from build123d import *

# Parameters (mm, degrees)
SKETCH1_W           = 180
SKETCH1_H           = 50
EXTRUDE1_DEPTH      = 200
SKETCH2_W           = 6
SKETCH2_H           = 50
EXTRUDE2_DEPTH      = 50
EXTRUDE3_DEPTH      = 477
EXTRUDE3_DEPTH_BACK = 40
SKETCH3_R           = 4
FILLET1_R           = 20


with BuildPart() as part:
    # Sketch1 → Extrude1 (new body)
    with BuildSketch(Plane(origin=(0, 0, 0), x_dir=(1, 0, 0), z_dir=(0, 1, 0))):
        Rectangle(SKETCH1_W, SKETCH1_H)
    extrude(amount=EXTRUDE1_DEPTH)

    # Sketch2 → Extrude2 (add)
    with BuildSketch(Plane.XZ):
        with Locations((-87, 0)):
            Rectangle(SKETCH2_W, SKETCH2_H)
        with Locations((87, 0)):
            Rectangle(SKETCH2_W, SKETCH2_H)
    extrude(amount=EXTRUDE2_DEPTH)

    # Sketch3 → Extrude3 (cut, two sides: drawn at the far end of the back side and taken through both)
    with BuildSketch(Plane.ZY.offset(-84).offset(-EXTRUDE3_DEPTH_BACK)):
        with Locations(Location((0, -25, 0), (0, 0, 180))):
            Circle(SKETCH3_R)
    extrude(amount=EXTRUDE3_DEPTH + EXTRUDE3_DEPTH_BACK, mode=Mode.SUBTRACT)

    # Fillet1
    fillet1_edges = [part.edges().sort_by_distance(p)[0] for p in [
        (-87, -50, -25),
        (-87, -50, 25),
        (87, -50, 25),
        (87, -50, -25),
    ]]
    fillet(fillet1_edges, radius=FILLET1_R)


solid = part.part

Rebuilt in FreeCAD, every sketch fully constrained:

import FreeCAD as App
import Part
import Sketcher


def edges_at(feature, points):
    """Names of the edges that pass closest to the given points."""
    edges = feature.Shape.Edges
    near = lambda p: min(range(len(edges)), key=lambda i: edges[i].distToShape(Part.Vertex(*p))[0])
    return sorted({f"Edge{near(p) + 1}" for p in points})

doc = App.newDocument("Part")
body = doc.addObject("PartDesign::Body", "Body")

sketch1 = body.newObject("Sketcher::SketchObject", "Sketch")
sketch1.AttachmentSupport = (doc.getObject("XZ_Plane"), [""])
sketch1.MapMode = "FlatFace"
sketch1.addGeometry([
    Part.LineSegment(App.Vector(-90, -25, 0), App.Vector(-90, 25, 0)),
    Part.LineSegment(App.Vector(-90, 25, 0), App.Vector(90, 25, 0)),
    Part.LineSegment(App.Vector(90, 25, 0), App.Vector(90, -25, 0)),
    Part.LineSegment(App.Vector(90, -25, 0), App.Vector(-90, -25, 0)),
], False)
sketch1.addConstraint([
    Sketcher.Constraint("Coincident", 0, 2, 1, 1),
    Sketcher.Constraint("Coincident", 1, 2, 2, 1),
    Sketcher.Constraint("Coincident", 2, 2, 3, 1),
    Sketcher.Constraint("Coincident", 3, 2, 0, 1),
    Sketcher.Constraint("Vertical", 0),
    Sketcher.Constraint("Horizontal", 1),
    Sketcher.Constraint("Vertical", 2),
    Sketcher.Constraint("Horizontal", 3),
    Sketcher.Constraint("Symmetric", 0, 2, 2, 2, -1, 1),
    Sketcher.Constraint("DistanceX", 1, 1, 1, 2, 180.0),
    Sketcher.Constraint("DistanceY", 0, 1, 0, 2, 50.0),
])
pad1 = body.newObject("PartDesign::Pad", "Pad")
pad1.Profile = sketch1
pad1.Length = 200
pad1.Reversed = True

sketch2 = body.newObject("Sketcher::SketchObject", "Sketch001")
sketch2.AttachmentSupport = (doc.getObject("XZ_Plane"), [""])
sketch2.MapMode = "FlatFace"
sketch2.addGeometry([
    Part.LineSegment(App.Vector(-90, 25, 0), App.Vector(-90, -25, 0)),
    Part.LineSegment(App.Vector(-90, -25, 0), App.Vector(-84, -25, 0)),
    Part.LineSegment(App.Vector(-84, -25, 0), App.Vector(-84, 25, 0)),
    Part.LineSegment(App.Vector(-84, 25, 0), App.Vector(-90, 25, 0)),
    Part.LineSegment(App.Vector(84, 25, 0), App.Vector(84, -25, 0)),
    Part.LineSegment(App.Vector(84, -25, 0), App.Vector(90, -25, 0)),
    Part.LineSegment(App.Vector(90, -25, 0), App.Vector(90, 25, 0)),
    Part.LineSegment(App.Vector(90, 25, 0), App.Vector(84, 25, 0)),
], False)
sketch2.addConstraint([
    Sketcher.Constraint("Coincident", 0, 2, 1, 1),
    Sketcher.Constraint("Coincident", 1, 2, 2, 1),
    Sketcher.Constraint("Coincident", 2, 2, 3, 1),
    Sketcher.Constraint("Coincident", 3, 2, 0, 1),
    Sketcher.Constraint("Coincident", 4, 2, 5, 1),
    Sketcher.Constraint("Coincident", 5, 2, 6, 1),
    Sketcher.Constraint("Coincident", 6, 2, 7, 1),
    Sketcher.Constraint("Coincident", 7, 2, 4, 1),
    Sketcher.Constraint("Vertical", 0),
    Sketcher.Constraint("Horizontal", 1),
    Sketcher.Constraint("Vertical", 2),
    Sketcher.Constraint("Horizontal", 3),
    Sketcher.Constraint("Vertical", 4),
    Sketcher.Constraint("Horizontal", 5),
    Sketcher.Constraint("Vertical", 6),
    Sketcher.Constraint("Horizontal", 7),
    Sketcher.Constraint("Symmetric", 2, 2, 4, 2, -1, 1),
    Sketcher.Constraint("Symmetric", 0, 2, 6, 2, -1, 1),
    Sketcher.Constraint("Horizontal", 1, 2, 4, 2),
    Sketcher.Constraint("DistanceX", 1, 1, 1, 2, 6.0),
    Sketcher.Constraint("DistanceY", 0, 2, 0, 1, 50.0),
    Sketcher.Constraint("DistanceX", 0, 2, -1, 1, 90.0),
])
pad2 = body.newObject("PartDesign::Pad", "Pad001")
pad2.Profile = sketch2
pad2.Length = 50

sketch3 = body.newObject("Sketcher::SketchObject", "Sketch002")
sketch3.AttachmentSupport = (doc.getObject("YZ_Plane"), [""])
sketch3.MapMode = "FlatFace"
sketch3.AttachmentOffset = App.Placement(App.Vector(0, 0, 84), App.Rotation())
sketch3.addGeometry(Part.Circle(App.Vector(-25, 0, 0), App.Vector(0, 0, 1), 4), False)
sketch3.addConstraint([
    Sketcher.Constraint("PointOnObject", 0, 3, -1),
    Sketcher.Constraint("Diameter", 0, 8.0),
    Sketcher.Constraint("DistanceX", 0, 3, -1, 1, 25.0),
])
pocket1 = body.newObject("PartDesign::Pocket", "Pocket")
pocket1.Profile = sketch3
pocket1.Type = "ThroughAll"
pocket1.Midplane = True
doc.recompute()

fillet = body.newObject("PartDesign::Fillet", "Fillet")
fillet.Base = (pocket1, edges_at(pocket1, [
    (-87, -50, -25),
    (-87, -50, 25),
    (87, -50, 25),
    (87, -50, -25),
]))
fillet.Radius = 20

doc.recompute()
